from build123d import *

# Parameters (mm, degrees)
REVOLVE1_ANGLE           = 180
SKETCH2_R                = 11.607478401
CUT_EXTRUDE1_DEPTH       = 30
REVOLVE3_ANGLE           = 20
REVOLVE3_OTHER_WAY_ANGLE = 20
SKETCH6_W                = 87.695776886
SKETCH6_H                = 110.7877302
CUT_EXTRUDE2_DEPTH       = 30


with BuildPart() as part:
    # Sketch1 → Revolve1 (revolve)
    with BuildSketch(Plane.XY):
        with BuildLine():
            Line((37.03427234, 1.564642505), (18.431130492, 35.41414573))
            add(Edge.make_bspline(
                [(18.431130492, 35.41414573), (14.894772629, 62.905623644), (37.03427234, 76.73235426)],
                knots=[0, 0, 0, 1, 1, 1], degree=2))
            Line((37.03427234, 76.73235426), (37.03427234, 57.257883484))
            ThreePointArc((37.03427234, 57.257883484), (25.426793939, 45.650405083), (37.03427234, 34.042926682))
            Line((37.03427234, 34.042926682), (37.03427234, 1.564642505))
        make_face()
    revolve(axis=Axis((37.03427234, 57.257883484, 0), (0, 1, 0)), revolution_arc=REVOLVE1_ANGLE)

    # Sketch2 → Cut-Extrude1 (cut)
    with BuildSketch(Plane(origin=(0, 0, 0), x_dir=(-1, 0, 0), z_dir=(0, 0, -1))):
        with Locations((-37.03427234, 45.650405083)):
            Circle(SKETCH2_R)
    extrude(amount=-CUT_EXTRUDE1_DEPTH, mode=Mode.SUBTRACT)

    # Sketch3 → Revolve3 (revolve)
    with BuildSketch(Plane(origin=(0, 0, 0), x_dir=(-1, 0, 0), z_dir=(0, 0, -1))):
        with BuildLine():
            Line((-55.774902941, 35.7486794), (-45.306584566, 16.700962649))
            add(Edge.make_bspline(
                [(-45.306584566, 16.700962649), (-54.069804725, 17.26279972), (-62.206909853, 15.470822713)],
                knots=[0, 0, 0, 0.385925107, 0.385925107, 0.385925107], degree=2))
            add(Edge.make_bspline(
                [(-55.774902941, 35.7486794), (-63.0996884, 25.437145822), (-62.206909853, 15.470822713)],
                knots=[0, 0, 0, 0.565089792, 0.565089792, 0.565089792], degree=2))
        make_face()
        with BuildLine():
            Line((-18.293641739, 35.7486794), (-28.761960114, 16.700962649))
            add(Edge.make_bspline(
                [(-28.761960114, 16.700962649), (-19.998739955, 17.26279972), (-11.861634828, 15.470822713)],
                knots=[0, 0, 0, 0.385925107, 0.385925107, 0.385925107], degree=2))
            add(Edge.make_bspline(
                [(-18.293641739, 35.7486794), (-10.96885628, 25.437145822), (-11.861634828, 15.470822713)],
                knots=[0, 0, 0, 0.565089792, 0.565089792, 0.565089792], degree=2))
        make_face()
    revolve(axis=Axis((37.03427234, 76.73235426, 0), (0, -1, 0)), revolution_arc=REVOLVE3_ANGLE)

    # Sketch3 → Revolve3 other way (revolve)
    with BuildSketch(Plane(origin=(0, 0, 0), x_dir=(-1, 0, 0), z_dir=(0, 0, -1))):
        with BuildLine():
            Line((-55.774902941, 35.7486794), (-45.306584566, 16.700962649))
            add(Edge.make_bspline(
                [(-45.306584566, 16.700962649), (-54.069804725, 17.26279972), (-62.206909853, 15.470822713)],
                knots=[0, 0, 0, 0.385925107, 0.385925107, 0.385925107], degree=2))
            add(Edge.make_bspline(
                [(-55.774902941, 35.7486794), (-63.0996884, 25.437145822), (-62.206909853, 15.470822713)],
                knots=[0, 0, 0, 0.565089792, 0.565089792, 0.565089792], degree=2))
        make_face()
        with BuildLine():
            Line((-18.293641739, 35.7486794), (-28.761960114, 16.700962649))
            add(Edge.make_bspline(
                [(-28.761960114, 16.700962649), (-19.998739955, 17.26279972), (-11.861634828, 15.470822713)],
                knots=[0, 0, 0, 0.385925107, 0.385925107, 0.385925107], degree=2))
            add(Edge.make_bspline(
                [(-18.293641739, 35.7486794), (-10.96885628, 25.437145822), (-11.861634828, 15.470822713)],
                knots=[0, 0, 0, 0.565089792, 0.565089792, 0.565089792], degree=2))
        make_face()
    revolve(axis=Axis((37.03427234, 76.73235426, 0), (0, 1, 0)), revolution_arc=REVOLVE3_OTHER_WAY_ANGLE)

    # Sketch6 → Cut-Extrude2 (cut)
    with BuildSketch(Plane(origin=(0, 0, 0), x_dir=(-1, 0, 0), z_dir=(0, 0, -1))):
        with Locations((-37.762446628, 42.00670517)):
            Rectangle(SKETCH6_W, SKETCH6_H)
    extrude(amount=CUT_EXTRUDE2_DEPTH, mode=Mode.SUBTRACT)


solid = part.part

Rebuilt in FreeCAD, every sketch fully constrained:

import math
import FreeCAD as App
import Part
import Sketcher
Q = App.Units.Quantity


def add_polygon(sketch, points):
    """Adds a closed chain of lines whose ends are joined by coincident constraints."""
    first, n = sketch.GeometryCount, len(points)
    for a, b in zip(points, points[1:] + points[:1]):
        sketch.addGeometry(Part.LineSegment(App.Vector(*a, 0), App.Vector(*b, 0)), False)
    for i in range(n):
        sketch.addConstraint(Sketcher.Constraint("Coincident", first + i, 2, first + (i + 1) % n, 1))

doc = App.newDocument("Part")
body = doc.addObject("PartDesign::Body", "Body")

# Sketch on XY plane
sketch1 = doc.addObject("Sketcher::SketchObject", "Sketch")
body.addObject(sketch1)
sketch1.AttachmentSupport = (doc.XY_Plane, [""])
sketch1.MapMode = "FlatFace"
sketch1.addGeometry(Part.LineSegment(App.Vector(18.43113, 35.414146, 0), App.Vector(37.034272, 1.564643, 0)), False)
sketch1.addGeometry(Part.LineSegment(App.Vector(37.034272, 1.564643, 0), App.Vector(37.034272, 34.042927, 0)), False)
sketch1.addGeometry(Part.ArcOfCircle(Part.Circle(App.Vector(37.034272, 45.650405, 0), App.Vector(0, 0, 1), 11.607478), math.radians(90), math.radians(270)), False)
sketch1.addGeometry(Part.LineSegment(App.Vector(37.034272, 57.257883, 0), App.Vector(37.034272, 76.732354, 0)), False)
sketch1.addGeometry(Part.BSplineCurve([App.Vector(18.43113, 35.414146, 0), App.Vector(14.894773, 62.905624, 0), App.Vector(37.034272, 76.732354, 0)], [3, 3], [0, 1], False, 2, [1, 1, 1], False), False)
sketch1.addGeometry(Part.LineSegment(App.Vector(37.034272, 1.564643, 0), App.Vector(37.034272, 76.732354, 0)), True)  # axis
sketch1.addConstraint(Sketcher.Constraint("Block", 4))
sketch1.addConstraint(Sketcher.Constraint("Coincident", 0, 2, 1, 1))
sketch1.addConstraint(Sketcher.Constraint("Coincident", 1, 2, 2, 2))
sketch1.addConstraint(Sketcher.Constraint("Coincident", 2, 1, 3, 1))
sketch1.addConstraint(Sketcher.Constraint("Coincident", 3, 2, 4, 2))
sketch1.addConstraint(Sketcher.Constraint("Coincident", 4, 1, 0, 1))
sketch1.addConstraint(Sketcher.Constraint("Vertical", 1))
sketch1.addConstraint(Sketcher.Constraint("Vertical", 3))
sketch1.addConstraint(Sketcher.Constraint("Vertical", 5))
sketch1.addConstraint(Sketcher.Constraint("Coincident", 5, 1, 0, 2))
sketch1.addConstraint(Sketcher.Constraint("Coincident", 5, 2, 3, 2))
sketch1.addConstraint(Sketcher.Constraint("Vertical", 2, 3, 0, 2))
sketch1.addConstraint(Sketcher.Constraint("Radius", 2, Q("11.607478 mm")))
sketch1.addConstraint(Sketcher.Constraint("DistanceY", 3, 1, 3, 2, Q("19.474471 mm")))
sketch1.addConstraint(Sketcher.Constraint("DistanceY", 5, 1, 5, 2, Q("75.167712 mm")))
revolution = doc.addObject("PartDesign::Revolution", "Revolution")
body.addObject(revolution)
revolution.Profile = sketch1
revolution.ReferenceAxis = (sketch1, ["Axis0"])
revolution.Angle = 180

# Sketch on XY plane
sketch2 = doc.addObject("Sketcher::SketchObject", "Sketch001")
body.addObject(sketch2)
sketch2.AttachmentSupport = (doc.XY_Plane, [""])
sketch2.MapMode = "FlatFace"
sketch2.addGeometry(Part.Circle(App.Vector(37, 46, 0), App.Vector(0, 0, 1), 12), False)
sketch2.addConstraint(Sketcher.Constraint("Diameter", 0, Q("23.214957 mm")))
sketch2.addConstraint(Sketcher.Constraint("DistanceX", -1, 1, 0, 3, Q("37.034272 mm")))
sketch2.addConstraint(Sketcher.Constraint("DistanceY", -1, 1, 0, 3, Q("45.650405 mm")))
pocket1 = doc.addObject("PartDesign::Pocket", "Pocket")
body.addObject(pocket1)
pocket1.Profile = sketch2
pocket1.Length = 30
pocket1.Reversed = True

# Sketch on XY plane
sketch3 = doc.addObject("Sketcher::SketchObject", "Sketch002")
body.addObject(sketch3)
sketch3.AttachmentSupport = (doc.XY_Plane, [""])
sketch3.MapMode = "FlatFace"
sketch3.addGeometry(Part.LineSegment(App.Vector(45.306585, 16.700963, 0), App.Vector(55.774903, 35.748679, 0)), False)
sketch3.addGeometry(Part.BSplineCurve([App.Vector(55.774903, 35.748679, 0), App.Vector(63.099688, 25.437146, 0), App.Vector(62.20691, 15.470823, 0)], [3, 3], [0, 0.565089792], False, 2, [1, 1, 1], False), False)
sketch3.addGeometry(Part.BSplineCurve([App.Vector(45.306585, 16.700963, 0), App.Vector(54.069805, 17.2628, 0), App.Vector(62.20691, 15.470823, 0)], [3, 3], [0, 0.385925107], False, 2, [1, 1, 1], False), False)
sketch3.addGeometry(Part.LineSegment(App.Vector(18.293642, 35.748679, 0), App.Vector(28.76196, 16.700963, 0)), False)
sketch3.addGeometry(Part.BSplineCurve([App.Vector(28.76196, 16.700963, 0), App.Vector(19.99874, 17.2628, 0), App.Vector(11.861635, 15.470823, 0)], [3, 3], [0, 0.385925107], False, 2, [1, 1, 1], False), False)
sketch3.addGeometry(Part.BSplineCurve([App.Vector(18.293642, 35.748679, 0), App.Vector(10.968856, 25.437146, 0), App.Vector(11.861635, 15.470823, 0)], [3, 3], [0, 0.565089792], False, 2, [1, 1, 1], False), False)
sketch3.addGeometry(Part.LineSegment(App.Vector(37.034272, 35.748679, 0), App.Vector(37.034272, 15.470823, 0)), True)  # axis
sketch3.addConstraint(Sketcher.Constraint("Block", 1))
sketch3.addConstraint(Sketcher.Constraint("Block", 2))
sketch3.addConstraint(Sketcher.Constraint("Block", 4))
sketch3.addConstraint(Sketcher.Constraint("Block", 5))
sketch3.addConstraint(Sketcher.Constraint("Coincident", 0, 2, 1, 1))
sketch3.addConstraint(Sketcher.Constraint("Coincident", 2, 1, 0, 1))
sketch3.addConstraint(Sketcher.Constraint("Coincident", 3, 2, 4, 1))
sketch3.addConstraint(Sketcher.Constraint("Coincident", 5, 1, 3, 1))
sketch3.addConstraint(Sketcher.Constraint("Vertical", 6))
sketch3.addConstraint(Sketcher.Constraint("Horizontal", 0, 2, 6, 1))
sketch3.addConstraint(Sketcher.Constraint("DistanceY", 6, 2, 6, 1, Q("20.277857 mm")))
sketch3.addConstraint(Sketcher.Constraint("DistanceX", 6, 1, 0, 2, Q("18.740631 mm")))
revolution2 = doc.addObject("PartDesign::Revolution", "Revolution001")
body.addObject(revolution2)
revolution2.Profile = sketch3
revolution2.ReferenceAxis = (sketch3, ["Axis0"])
revolution2.Angle = 20

# Sketch on XY plane
sketch4 = doc.addObject("Sketcher::SketchObject", "Sketch003")
body.addObject(sketch4)
sketch4.AttachmentSupport = (doc.XY_Plane, [""])
sketch4.MapMode = "FlatFace"
sketch4.addGeometry(Part.LineSegment(App.Vector(45.306585, 16.700963, 0), App.Vector(55.774903, 35.748679, 0)), False)
sketch4.addGeometry(Part.BSplineCurve([App.Vector(55.774903, 35.748679, 0), App.Vector(63.099688, 25.437146, 0), App.Vector(62.20691, 15.470823, 0)], [3, 3], [0, 0.565089792], False, 2, [1, 1, 1], False), False)
sketch4.addGeometry(Part.BSplineCurve([App.Vector(45.306585, 16.700963, 0), App.Vector(54.069805, 17.2628, 0), App.Vector(62.20691, 15.470823, 0)], [3, 3], [0, 0.385925107], False, 2, [1, 1, 1], False), False)
sketch4.addGeometry(Part.LineSegment(App.Vector(18.293642, 35.748679, 0), App.Vector(28.76196, 16.700963, 0)), False)
sketch4.addGeometry(Part.BSplineCurve([App.Vector(28.76196, 16.700963, 0), App.Vector(19.99874, 17.2628, 0), App.Vector(11.861635, 15.470823, 0)], [3, 3], [0, 0.385925107], False, 2, [1, 1, 1], False), False)
sketch4.addGeometry(Part.BSplineCurve([App.Vector(18.293642, 35.748679, 0), App.Vector(10.968856, 25.437146, 0), App.Vector(11.861635, 15.470823, 0)], [3, 3], [0, 0.565089792], False, 2, [1, 1, 1], False), False)
sketch4.addGeometry(Part.LineSegment(App.Vector(37.034272, 15.470823, 0), App.Vector(37.034272, 35.748679, 0)), True)  # axis
sketch4.addConstraint(Sketcher.Constraint("Block", 1))
sketch4.addConstraint(Sketcher.Constraint("Block", 2))
sketch4.addConstraint(Sketcher.Constraint("Block", 4))
sketch4.addConstraint(Sketcher.Constraint("Block", 5))
sketch4.addConstraint(Sketcher.Constraint("Coincident", 0, 2, 1, 1))
sketch4.addConstraint(Sketcher.Constraint("Coincident", 2, 1, 0, 1))
sketch4.addConstraint(Sketcher.Constraint("Coincident", 3, 2, 4, 1))
sketch4.addConstraint(Sketcher.Constraint("Coincident", 5, 1, 3, 1))
sketch4.addConstraint(Sketcher.Constraint("Vertical", 6))
sketch4.addConstraint(Sketcher.Constraint("Horizontal", 0, 2, 6, 2))
sketch4.addConstraint(Sketcher.Constraint("DistanceY", 6, 1, 6, 2, Q("20.277857 mm")))
sketch4.addConstraint(Sketcher.Constraint("DistanceX", 6, 1, 0, 2, Q("18.740631 mm")))
revolution3 = doc.addObject("PartDesign::Revolution", "Revolution002")
body.addObject(revolution3)
revolution3.Profile = sketch4
revolution3.ReferenceAxis = (sketch4, ["Axis0"])
revolution3.Angle = 20

# Sketch on XY plane
sketch5 = doc.addObject("Sketcher::SketchObject", "Sketch004")
body.addObject(sketch5)
sketch5.AttachmentSupport = (doc.XY_Plane, [""])
sketch5.MapMode = "FlatFace"
add_polygon(sketch5, [(82, 97), (82, -13), (-6, -13), (-6, 97)])  # lines 0-3
sketch5.addConstraint(Sketcher.Constraint("Vertical", 0))
sketch5.addConstraint(Sketcher.Constraint("Horizontal", 1))
sketch5.addConstraint(Sketcher.Constraint("Vertical", 2))
sketch5.addConstraint(Sketcher.Constraint("Horizontal", 3))
sketch5.addConstraint(Sketcher.Constraint("DistanceY", 0, 2, 0, 1, Q("110.78773 mm")))
sketch5.addConstraint(Sketcher.Constraint("DistanceX", 1, 2, 1, 1, Q("87.695777 mm")))
sketch5.addConstraint(Sketcher.Constraint("DistanceY", 0, 2, -1, 1, Q("13.38716 mm")))
sketch5.addConstraint(Sketcher.Constraint("DistanceX", 1, 2, -1, 1, Q("6.085442 mm")))
pocket2 = doc.addObject("PartDesign::Pocket", "Pocket001")
body.addObject(pocket2)
pocket2.Profile = sketch5
pocket2.Length = 30

doc.recompute()
